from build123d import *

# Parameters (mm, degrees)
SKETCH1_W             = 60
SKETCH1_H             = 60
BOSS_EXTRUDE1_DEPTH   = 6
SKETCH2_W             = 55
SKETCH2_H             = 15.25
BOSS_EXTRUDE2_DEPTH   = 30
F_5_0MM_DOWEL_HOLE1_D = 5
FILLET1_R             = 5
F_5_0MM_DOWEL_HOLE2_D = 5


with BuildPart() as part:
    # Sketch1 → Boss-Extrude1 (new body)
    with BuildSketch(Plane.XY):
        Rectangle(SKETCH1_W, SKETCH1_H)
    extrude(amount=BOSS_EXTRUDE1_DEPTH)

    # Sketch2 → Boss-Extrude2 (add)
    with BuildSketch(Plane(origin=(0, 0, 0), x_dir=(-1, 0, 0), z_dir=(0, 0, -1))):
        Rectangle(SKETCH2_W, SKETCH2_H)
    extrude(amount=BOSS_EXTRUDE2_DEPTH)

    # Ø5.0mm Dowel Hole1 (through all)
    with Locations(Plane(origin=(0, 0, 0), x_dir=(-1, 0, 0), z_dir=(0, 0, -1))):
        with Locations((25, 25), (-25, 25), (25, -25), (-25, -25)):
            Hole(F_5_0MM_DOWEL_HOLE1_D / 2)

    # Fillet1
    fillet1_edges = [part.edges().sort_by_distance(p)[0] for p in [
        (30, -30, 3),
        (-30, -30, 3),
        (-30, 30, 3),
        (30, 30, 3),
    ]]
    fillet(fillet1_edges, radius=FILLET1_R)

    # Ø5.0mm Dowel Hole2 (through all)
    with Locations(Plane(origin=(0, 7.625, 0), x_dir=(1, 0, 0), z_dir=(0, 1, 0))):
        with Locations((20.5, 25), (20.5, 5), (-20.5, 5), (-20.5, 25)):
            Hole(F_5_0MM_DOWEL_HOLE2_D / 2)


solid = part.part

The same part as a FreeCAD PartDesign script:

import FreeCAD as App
import Part
import Sketcher


def edges_at(feature, points):
    """Names of the edges that pass closest to the given points."""
    edges = feature.Shape.Edges
    near = lambda p: min(range(len(edges)), key=lambda i: edges[i].distToShape(Part.Vertex(*p))[0])
    return sorted({f"Edge{near(p) + 1}" for p in points})


def add_polygon(sketch, points):
    """Adds a closed chain of lines whose ends are joined by coincident constraints."""
    first, n = sketch.GeometryCount, len(points)
    for a, b in zip(points, points[1:] + points[:1]):
        sketch.addGeometry(Part.LineSegment(App.Vector(*a, 0), App.Vector(*b, 0)), False)
    for i in range(n):
        sketch.addConstraint(Sketcher.Constraint("Coincident", first + i, 2, first + (i + 1) % n, 1))

doc = App.newDocument("Part")
body = doc.addObject("PartDesign::Body", "Body")

# Sketch on XY plane
sketch1 = body.newObject("Sketcher::SketchObject", "Sketch")
sketch1.AttachmentSupport = (doc.getObject("XY_Plane"), [""])
sketch1.MapMode = "FlatFace"
add_polygon(sketch1, [(-30, 30), (-30, -30), (30, -30), (30, 30)])  # lines 0-3
sketch1.addConstraint(Sketcher.Constraint("Vertical", 0))
sketch1.addConstraint(Sketcher.Constraint("Horizontal", 1))
sketch1.addConstraint(Sketcher.Constraint("Vertical", 2))
sketch1.addConstraint(Sketcher.Constraint("Horizontal", 3))
sketch1.addConstraint(Sketcher.Constraint("Symmetric", 0, 2, 2, 2, -1, 1))
sketch1.addConstraint(Sketcher.Constraint("Equal", 3, 0))
sketch1.addConstraint(Sketcher.Constraint("DistanceX", 1, 1, 1, 2, 60.0))
pad1 = body.newObject("PartDesign::Pad", "Pad")
pad1.Profile = sketch1
pad1.Length = 6

# Sketch on XY plane
sketch2 = body.newObject("Sketcher::SketchObject", "Sketch001")
sketch2.AttachmentSupport = (doc.getObject("XY_Plane"), [""])
sketch2.MapMode = "FlatFace"
add_polygon(sketch2, [(28, 8), (28, -8), (-28, -8), (-28, 8)])  # lines 0-3
sketch2.addConstraint(Sketcher.Constraint("Vertical", 0))
sketch2.addConstraint(Sketcher.Constraint("Horizontal", 1))
sketch2.addConstraint(Sketcher.Constraint("Vertical", 2))
sketch2.addConstraint(Sketcher.Constraint("Horizontal", 3))
sketch2.addConstraint(Sketcher.Constraint("Symmetric", 0, 2, 2, 2, -1, 1))
sketch2.addConstraint(Sketcher.Constraint("DistanceX", 1, 2, 1, 1, 55.0))
sketch2.addConstraint(Sketcher.Constraint("DistanceY", 0, 2, 0, 1, 15.25))
pad2 = body.newObject("PartDesign::Pad", "Pad001")
pad2.Profile = sketch2
pad2.Length = 30
pad2.Reversed = True

# Sketch on XY plane
sketch3 = body.newObject("Sketcher::SketchObject", "Sketch002")
sketch3.AttachmentSupport = (doc.getObject("XY_Plane"), [""])
sketch3.MapMode = "FlatFace"
sketch3.addGeometry(Part.Circle(App.Vector(-25, 25, 0), App.Vector(0, 0, 1), 2.5), False)
sketch3.addGeometry(Part.Circle(App.Vector(25, 25, 0), App.Vector(0, 0, 1), 2.5), False)
sketch3.addGeometry(Part.Circle(App.Vector(-25, -25, 0), App.Vector(0, 0, 1), 2.5), False)
sketch3.addGeometry(Part.Circle(App.Vector(25, -25, 0), App.Vector(0, 0, 1), 2.5), False)
sketch3.addConstraint(Sketcher.Constraint("Equal", 0, 1))
sketch3.addConstraint(Sketcher.Constraint("Equal", 1, 2))
sketch3.addConstraint(Sketcher.Constraint("Equal", 2, 3))
sketch3.addConstraint(Sketcher.Constraint("Symmetric", 1, 3, 2, 3, -1, 1))
sketch3.addConstraint(Sketcher.Constraint("Symmetric", 0, 3, 3, 3, -1, 1))
sketch3.addConstraint(Sketcher.Constraint("Symmetric", 0, 3, 1, 3, -2))
sketch3.addConstraint(Sketcher.Constraint("Diameter", 0, 5.0))
sketch3.addConstraint(Sketcher.Constraint("DistanceX", 0, 3, -1, 1, 25.0))
sketch3.addConstraint(Sketcher.Constraint("DistanceY", -1, 1, 0, 3, 25.0))
doc.recompute()
hole = body.newObject("PartDesign::Hole", "Hole")
hole.Profile = sketch3
hole.ThreadType = "None"
hole.Diameter = 5
hole.DepthType = "ThroughAll"
hole.Reversed = True
doc.recompute()

fillet = body.newObject("PartDesign::Fillet", "Fillet")
fillet.Base = (hole, edges_at(hole, [
    (30, -30, 3),
    (-30, -30, 3),
    (-30, 30, 3),
    (30, 30, 3),
]))
fillet.Radius = 5

# Sketch on XZ plane
sketch4 = body.newObject("Sketcher::SketchObject", "Sketch003")
sketch4.AttachmentSupport = (doc.getObject("XZ_Plane"), [""])
sketch4.MapMode = "FlatFace"
sketch4.AttachmentOffset = App.Placement(App.Vector(0, 0, -7.625), App.Rotation())
sketch4.addGeometry(Part.Circle(App.Vector(20.5, -25, 0), App.Vector(0, 0, 1), 2.5), False)
sketch4.addGeometry(Part.Circle(App.Vector(20.5, -5, 0), App.Vector(0, 0, 1), 2.5), False)
sketch4.addGeometry(Part.Circle(App.Vector(-20.5, -5, 0), App.Vector(0, 0, 1), 2.5), False)
sketch4.addGeometry(Part.Circle(App.Vector(-20.5, -25, 0), App.Vector(0, 0, 1), 2.5), False)
sketch4.addConstraint(Sketcher.Constraint("Equal", 0, 1))
sketch4.addConstraint(Sketcher.Constraint("Equal", 1, 2))
sketch4.addConstraint(Sketcher.Constraint("Equal", 2, 3))
sketch4.addConstraint(Sketcher.Constraint("Symmetric", 1, 3, 2, 3, -2))
sketch4.addConstraint(Sketcher.Constraint("Symmetric", 0, 3, 3, 3, -2))
sketch4.addConstraint(Sketcher.Constraint("Vertical", 0, 3, 1, 3))
sketch4.addConstraint(Sketcher.Constraint("Diameter", 0, 5.0))
sketch4.addConstraint(Sketcher.Constraint("DistanceY", 0, 3, -1, 1, 25.0))
sketch4.addConstraint(Sketcher.Constraint("DistanceY", 1, 3, -1, 1, 5.0))
sketch4.addConstraint(Sketcher.Constraint("DistanceX", 2, 3, 1, 3, 41.0))
doc.recompute()
hole2 = body.newObject("PartDesign::Hole", "Hole001")
hole2.Profile = sketch4
hole2.ThreadType = "None"
hole2.Diameter = 5
hole2.DepthType = "ThroughAll"
hole2.Reversed = True

doc.recompute()
